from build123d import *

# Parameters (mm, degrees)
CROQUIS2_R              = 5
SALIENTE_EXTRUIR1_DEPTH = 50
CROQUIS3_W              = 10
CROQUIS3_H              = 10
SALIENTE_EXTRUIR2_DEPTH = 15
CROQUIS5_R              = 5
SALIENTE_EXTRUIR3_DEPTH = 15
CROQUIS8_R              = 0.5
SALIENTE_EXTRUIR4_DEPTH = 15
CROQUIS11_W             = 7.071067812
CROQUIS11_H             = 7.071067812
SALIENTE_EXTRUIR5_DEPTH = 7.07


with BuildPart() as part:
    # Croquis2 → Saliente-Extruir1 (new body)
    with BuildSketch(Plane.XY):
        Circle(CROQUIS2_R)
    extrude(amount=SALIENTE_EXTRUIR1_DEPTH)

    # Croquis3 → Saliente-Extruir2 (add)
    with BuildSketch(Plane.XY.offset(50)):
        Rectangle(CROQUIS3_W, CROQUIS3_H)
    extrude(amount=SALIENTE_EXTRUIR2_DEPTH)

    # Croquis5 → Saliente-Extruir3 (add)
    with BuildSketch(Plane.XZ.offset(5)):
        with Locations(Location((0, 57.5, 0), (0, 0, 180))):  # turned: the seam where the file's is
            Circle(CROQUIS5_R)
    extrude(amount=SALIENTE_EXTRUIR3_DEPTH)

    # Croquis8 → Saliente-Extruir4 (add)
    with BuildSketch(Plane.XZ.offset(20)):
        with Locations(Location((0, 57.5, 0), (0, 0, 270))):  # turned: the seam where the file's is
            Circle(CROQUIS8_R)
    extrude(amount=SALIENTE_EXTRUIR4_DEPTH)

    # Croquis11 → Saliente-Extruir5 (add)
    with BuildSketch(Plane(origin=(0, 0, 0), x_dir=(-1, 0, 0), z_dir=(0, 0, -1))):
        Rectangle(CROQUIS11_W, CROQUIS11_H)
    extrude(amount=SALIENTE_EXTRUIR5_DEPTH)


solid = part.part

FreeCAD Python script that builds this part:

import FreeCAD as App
import Part
import Sketcher
Q = App.Units.Quantity


def add_polygon(sketch, points):
    """Adds a closed chain of lines whose ends are joined by coincident constraints."""
    first, n = sketch.GeometryCount, len(points)
    for a, b in zip(points, points[1:] + points[:1]):
        sketch.addGeometry(Part.LineSegment(App.Vector(*a, 0), App.Vector(*b, 0)), False)
    for i in range(n):
        sketch.addConstraint(Sketcher.Constraint("Coincident", first + i, 2, first + (i + 1) % n, 1))

doc = App.newDocument("Part")
body = doc.addObject("PartDesign::Body", "Body")

sketch1 = body.newObject("Sketcher::SketchObject", "Sketch")
sketch1.AttachmentSupport = (doc.getObject("XY_Plane"), [""])
sketch1.MapMode = "FlatFace"
sketch1.addGeometry(Part.Circle(App.Vector(0, 0, 0), App.Vector(0, 0, 1), 5), False)
sketch1.addConstraint(Sketcher.Constraint("Coincident", 0, 3, -1, 1))
sketch1.addConstraint(Sketcher.Constraint("Diameter", 0, Q("10 mm")))
pad1 = body.newObject("PartDesign::Pad", "Pad")
pad1.Profile = sketch1
pad1.Length = 50

sketch2 = body.newObject("Sketcher::SketchObject", "Sketch001")
sketch2.AttachmentSupport = (doc.getObject("XY_Plane"), [""])
sketch2.MapMode = "FlatFace"
sketch2.AttachmentOffset = App.Placement(App.Vector(0, 0, 50), App.Rotation())
add_polygon(sketch2, [(-5, 5), (-5, -5), (5, -5), (5, 5)])
sketch2.addConstraint(Sketcher.Constraint("Vertical", 0))
sketch2.addConstraint(Sketcher.Constraint("Horizontal", 1))
sketch2.addConstraint(Sketcher.Constraint("Vertical", 2))
sketch2.addConstraint(Sketcher.Constraint("Horizontal", 3))
sketch2.addConstraint(Sketcher.Constraint("Symmetric", 0, 2, 2, 2, -1, 1))
sketch2.addConstraint(Sketcher.Constraint("Equal", 3, 0))
sketch2.addConstraint(Sketcher.Constraint("DistanceX", 1, 1, 1, 2, Q("10 mm")))
pad2 = body.newObject("PartDesign::Pad", "Pad001")
pad2.Profile = sketch2
pad2.Length = 15

sketch3 = body.newObject("Sketcher::SketchObject", "Sketch002")
sketch3.AttachmentSupport = (doc.getObject("XZ_Plane"), [""])
sketch3.MapMode = "FlatFace"
sketch3.AttachmentOffset = App.Placement(App.Vector(0, 0, 5), App.Rotation())
sketch3.addGeometry(Part.Circle(App.Vector(0, 57.5, 0), App.Vector(0, 0, 1), 5), False)
sketch3.addConstraint(Sketcher.Constraint("PointOnObject", 0, 3, -2))
sketch3.addConstraint(Sketcher.Constraint("Diameter", 0, Q("10 mm")))
sketch3.addConstraint(Sketcher.Constraint("DistanceY", -1, 1, 0, 3, Q("57.5 mm")))
pad3 = body.newObject("PartDesign::Pad", "Pad002")
pad3.Profile = sketch3
pad3.Length = 15

sketch4 = body.newObject("Sketcher::SketchObject", "Sketch003")
sketch4.AttachmentSupport = (doc.getObject("XZ_Plane"), [""])
sketch4.MapMode = "FlatFace"
sketch4.AttachmentOffset = App.Placement(App.Vector(0, 0, 20), App.Rotation())
sketch4.addGeometry(Part.Circle(App.Vector(0, 57.5, 0), App.Vector(0, 0, 1), 0.5), False)
sketch4.addConstraint(Sketcher.Constraint("PointOnObject", 0, 3, -2))
sketch4.addConstraint(Sketcher.Constraint("Diameter", 0, Q("1 mm")))
sketch4.addConstraint(Sketcher.Constraint("DistanceY", -1, 1, 0, 3, Q("57.5 mm")))
pad4 = body.newObject("PartDesign::Pad", "Pad003")
pad4.Profile = sketch4
pad4.Length = 15

sketch5 = body.newObject("Sketcher::SketchObject", "Sketch004")
sketch5.AttachmentSupport = (doc.getObject("XY_Plane"), [""])
sketch5.MapMode = "FlatFace"
add_polygon(sketch5, [(3.535534, 3.535534), (3.535534, -3.535534), (-3.535534, -3.535534), (-3.535534, 3.535534)])
sketch5.addConstraint(Sketcher.Constraint("Vertical", 0))
sketch5.addConstraint(Sketcher.Constraint("Horizontal", 1))
sketch5.addConstraint(Sketcher.Constraint("Vertical", 2))
sketch5.addConstraint(Sketcher.Constraint("Horizontal", 3))
sketch5.addConstraint(Sketcher.Constraint("Symmetric", 0, 2, 2, 2, -1, 1))
sketch5.addConstraint(Sketcher.Constraint("Equal", 3, 0))
sketch5.addConstraint(Sketcher.Constraint("DistanceX", 1, 2, 1, 1, Q("7.071068 mm")))
pad5 = body.newObject("PartDesign::Pad", "Pad004")
pad5.Profile = sketch5
pad5.Length = 7.07
pad5.Reversed = True

doc.recompute()
